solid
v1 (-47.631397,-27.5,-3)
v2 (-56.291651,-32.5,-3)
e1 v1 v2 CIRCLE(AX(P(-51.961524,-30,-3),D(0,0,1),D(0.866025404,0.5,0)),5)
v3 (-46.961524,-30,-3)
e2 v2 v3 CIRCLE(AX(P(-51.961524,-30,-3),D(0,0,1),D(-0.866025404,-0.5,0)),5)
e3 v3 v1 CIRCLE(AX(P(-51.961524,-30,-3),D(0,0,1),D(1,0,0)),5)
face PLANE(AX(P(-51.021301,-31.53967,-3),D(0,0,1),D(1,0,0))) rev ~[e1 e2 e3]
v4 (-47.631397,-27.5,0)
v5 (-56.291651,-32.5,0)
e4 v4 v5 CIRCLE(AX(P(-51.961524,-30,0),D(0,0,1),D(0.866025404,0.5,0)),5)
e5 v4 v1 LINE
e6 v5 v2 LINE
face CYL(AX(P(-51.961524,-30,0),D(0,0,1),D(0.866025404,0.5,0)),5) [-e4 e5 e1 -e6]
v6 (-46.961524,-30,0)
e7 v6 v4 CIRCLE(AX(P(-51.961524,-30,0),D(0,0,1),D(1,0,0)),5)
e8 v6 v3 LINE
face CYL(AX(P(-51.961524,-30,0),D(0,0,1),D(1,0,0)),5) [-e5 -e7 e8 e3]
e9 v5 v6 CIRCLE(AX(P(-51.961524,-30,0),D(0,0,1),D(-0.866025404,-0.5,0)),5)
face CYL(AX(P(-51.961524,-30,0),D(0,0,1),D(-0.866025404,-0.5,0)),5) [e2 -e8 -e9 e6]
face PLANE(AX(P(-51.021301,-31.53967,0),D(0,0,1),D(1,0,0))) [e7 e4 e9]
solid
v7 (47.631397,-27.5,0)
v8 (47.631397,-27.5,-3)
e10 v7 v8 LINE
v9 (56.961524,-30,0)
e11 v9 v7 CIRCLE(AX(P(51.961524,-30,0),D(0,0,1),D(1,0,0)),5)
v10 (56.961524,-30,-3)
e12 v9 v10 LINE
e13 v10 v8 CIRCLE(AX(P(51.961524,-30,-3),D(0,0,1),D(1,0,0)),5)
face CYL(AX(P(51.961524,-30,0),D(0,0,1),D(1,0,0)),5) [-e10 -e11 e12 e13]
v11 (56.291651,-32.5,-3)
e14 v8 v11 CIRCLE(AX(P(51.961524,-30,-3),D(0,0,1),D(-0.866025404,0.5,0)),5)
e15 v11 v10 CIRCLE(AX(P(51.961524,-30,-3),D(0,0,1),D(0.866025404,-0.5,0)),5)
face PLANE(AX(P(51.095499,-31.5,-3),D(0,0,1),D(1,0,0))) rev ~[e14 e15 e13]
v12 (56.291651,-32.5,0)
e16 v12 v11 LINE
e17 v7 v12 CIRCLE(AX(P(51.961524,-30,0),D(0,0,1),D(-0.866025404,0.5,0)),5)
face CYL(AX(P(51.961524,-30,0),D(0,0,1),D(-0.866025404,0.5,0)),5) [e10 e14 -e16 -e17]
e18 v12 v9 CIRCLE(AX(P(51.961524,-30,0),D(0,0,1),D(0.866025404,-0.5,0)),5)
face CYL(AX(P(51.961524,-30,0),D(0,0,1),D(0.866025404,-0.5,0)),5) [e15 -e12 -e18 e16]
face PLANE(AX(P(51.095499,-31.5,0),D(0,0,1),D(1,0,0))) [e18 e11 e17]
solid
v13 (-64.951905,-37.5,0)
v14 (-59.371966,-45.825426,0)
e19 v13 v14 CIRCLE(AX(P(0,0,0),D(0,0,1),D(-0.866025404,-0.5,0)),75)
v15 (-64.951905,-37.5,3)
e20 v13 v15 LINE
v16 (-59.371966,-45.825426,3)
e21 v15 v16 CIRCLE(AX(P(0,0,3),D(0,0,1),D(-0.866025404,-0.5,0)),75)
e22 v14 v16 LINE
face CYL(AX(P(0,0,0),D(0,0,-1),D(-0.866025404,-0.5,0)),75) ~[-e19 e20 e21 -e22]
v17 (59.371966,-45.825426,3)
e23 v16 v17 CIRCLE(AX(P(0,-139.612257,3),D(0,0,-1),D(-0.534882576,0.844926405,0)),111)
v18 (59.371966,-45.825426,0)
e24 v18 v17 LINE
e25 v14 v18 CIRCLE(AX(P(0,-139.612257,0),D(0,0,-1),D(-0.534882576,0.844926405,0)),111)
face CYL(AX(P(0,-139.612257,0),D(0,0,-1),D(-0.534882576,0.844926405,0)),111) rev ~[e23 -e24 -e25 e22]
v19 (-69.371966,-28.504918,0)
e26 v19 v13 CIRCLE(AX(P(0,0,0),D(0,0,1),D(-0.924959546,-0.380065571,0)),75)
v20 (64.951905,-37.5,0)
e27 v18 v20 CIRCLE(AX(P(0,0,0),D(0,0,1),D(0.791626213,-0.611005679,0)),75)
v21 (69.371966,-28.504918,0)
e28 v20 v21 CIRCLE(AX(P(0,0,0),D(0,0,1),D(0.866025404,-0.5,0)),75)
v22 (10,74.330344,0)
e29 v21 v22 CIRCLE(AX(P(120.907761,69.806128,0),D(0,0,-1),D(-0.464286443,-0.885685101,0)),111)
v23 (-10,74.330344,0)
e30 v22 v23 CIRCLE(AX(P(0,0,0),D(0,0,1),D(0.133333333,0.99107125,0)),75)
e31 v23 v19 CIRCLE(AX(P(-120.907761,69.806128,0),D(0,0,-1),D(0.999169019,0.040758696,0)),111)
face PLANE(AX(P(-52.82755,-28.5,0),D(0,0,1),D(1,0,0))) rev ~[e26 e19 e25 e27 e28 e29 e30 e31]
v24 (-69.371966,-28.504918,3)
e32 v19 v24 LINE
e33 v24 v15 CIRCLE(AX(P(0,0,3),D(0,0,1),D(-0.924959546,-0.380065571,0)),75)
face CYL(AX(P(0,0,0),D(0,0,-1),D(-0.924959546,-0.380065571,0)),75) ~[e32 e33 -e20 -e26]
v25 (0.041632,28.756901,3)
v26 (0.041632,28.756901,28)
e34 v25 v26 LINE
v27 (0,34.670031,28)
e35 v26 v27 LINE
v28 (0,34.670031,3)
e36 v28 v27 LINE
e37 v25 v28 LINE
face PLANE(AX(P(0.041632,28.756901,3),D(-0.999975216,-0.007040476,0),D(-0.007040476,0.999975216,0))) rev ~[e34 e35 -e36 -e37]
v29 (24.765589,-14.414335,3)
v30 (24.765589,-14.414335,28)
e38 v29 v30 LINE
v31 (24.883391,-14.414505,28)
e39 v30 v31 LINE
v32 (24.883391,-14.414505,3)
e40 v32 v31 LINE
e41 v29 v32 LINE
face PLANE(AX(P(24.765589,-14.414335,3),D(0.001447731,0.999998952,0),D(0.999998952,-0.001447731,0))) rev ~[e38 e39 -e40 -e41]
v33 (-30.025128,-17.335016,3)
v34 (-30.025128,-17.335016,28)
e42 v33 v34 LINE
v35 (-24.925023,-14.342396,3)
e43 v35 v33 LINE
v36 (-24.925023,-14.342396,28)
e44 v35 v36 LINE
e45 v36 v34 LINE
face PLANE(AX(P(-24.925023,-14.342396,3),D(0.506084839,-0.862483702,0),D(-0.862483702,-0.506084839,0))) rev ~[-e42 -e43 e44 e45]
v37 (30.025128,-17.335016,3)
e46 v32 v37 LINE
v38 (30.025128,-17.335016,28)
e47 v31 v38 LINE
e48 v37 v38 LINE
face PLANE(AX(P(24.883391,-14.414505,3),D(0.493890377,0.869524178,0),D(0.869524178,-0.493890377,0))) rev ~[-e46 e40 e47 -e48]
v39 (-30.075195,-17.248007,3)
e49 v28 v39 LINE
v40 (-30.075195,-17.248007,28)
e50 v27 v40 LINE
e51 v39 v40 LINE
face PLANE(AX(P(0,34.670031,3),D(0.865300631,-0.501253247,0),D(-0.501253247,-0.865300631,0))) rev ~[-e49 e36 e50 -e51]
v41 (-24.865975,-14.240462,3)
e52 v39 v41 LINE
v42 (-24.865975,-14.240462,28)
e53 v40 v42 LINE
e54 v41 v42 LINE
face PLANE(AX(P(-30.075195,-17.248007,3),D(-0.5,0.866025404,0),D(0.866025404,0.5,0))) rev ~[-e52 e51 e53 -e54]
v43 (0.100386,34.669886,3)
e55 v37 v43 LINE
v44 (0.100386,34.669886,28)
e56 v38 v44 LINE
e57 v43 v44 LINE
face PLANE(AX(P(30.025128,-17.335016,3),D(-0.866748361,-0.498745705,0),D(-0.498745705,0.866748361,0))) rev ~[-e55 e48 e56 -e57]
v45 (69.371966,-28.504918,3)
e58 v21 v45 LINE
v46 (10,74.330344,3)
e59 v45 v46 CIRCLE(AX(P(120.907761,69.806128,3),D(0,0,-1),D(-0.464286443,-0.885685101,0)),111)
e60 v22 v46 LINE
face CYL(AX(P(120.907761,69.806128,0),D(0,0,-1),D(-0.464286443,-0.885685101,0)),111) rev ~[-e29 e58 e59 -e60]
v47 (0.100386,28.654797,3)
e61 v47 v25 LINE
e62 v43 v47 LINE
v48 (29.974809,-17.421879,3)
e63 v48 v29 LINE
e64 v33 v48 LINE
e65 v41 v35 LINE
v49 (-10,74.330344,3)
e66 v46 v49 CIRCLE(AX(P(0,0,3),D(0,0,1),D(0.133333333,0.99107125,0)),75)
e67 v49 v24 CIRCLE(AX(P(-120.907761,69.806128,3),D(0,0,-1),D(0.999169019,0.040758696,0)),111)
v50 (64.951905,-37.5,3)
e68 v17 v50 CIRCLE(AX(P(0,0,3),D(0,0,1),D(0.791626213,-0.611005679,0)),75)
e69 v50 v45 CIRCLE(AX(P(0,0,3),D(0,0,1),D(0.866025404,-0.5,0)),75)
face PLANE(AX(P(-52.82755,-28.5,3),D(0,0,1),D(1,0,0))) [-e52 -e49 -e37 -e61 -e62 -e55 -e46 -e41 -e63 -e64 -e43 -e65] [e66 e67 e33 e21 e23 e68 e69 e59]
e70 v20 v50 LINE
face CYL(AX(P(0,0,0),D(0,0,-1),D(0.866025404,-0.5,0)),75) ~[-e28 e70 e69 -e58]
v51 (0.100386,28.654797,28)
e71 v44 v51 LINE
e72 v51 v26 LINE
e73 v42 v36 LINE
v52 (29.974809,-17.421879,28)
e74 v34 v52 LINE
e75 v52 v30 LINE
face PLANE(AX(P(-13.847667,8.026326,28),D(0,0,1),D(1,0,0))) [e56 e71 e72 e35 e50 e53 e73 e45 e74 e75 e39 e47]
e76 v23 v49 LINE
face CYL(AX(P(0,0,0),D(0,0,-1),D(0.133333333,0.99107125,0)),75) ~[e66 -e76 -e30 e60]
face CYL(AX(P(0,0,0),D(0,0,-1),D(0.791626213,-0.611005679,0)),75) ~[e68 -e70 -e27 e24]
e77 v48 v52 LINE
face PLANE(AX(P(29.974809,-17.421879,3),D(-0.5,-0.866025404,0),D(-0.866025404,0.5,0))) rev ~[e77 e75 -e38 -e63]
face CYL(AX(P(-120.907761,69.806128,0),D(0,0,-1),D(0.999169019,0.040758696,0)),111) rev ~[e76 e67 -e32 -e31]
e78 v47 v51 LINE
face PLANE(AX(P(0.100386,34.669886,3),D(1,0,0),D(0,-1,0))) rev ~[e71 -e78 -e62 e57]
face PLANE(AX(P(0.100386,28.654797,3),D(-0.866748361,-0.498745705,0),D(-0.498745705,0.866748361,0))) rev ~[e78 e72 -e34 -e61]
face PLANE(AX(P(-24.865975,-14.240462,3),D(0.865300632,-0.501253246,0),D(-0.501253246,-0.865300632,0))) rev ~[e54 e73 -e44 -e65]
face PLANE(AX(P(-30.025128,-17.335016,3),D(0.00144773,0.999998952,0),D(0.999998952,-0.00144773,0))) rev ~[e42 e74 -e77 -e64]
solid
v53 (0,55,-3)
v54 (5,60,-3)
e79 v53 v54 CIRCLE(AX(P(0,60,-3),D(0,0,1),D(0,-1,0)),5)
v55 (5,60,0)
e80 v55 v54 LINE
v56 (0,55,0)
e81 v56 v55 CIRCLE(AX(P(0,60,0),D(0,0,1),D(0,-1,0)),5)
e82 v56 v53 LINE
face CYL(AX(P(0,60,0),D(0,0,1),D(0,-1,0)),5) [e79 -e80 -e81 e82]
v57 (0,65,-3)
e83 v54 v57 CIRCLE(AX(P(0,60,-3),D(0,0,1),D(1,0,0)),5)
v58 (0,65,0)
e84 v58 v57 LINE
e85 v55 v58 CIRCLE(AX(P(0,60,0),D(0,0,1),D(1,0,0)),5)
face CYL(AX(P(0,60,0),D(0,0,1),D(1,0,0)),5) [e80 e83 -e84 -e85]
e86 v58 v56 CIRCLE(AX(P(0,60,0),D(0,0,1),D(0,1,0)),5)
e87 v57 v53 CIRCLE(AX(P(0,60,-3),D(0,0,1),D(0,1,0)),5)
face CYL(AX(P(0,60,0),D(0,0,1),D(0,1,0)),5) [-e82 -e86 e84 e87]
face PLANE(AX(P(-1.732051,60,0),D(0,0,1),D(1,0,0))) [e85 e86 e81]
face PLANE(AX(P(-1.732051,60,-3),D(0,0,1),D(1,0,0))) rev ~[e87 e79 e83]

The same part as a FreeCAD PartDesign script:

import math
import FreeCAD as App
import Part
import Sketcher

V = App.Vector
Q = App.Units.Quantity


def add_polygon(sketch, points):
    """Adds a closed chain of lines whose ends are joined by coincident constraints."""
    first, n = sketch.GeometryCount, len(points)
    for a, b in zip(points, points[1:] + points[:1]):
        sketch.addGeometry(Part.LineSegment(App.Vector(*a, 0), App.Vector(*b, 0)), False)
    for i in range(n):
        sketch.addConstraint(Sketcher.Constraint("Coincident", first + i, 2, first + (i + 1) % n, 1))

doc = App.newDocument("Part")
body = doc.addObject("PartDesign::Body", "Body")

# Sketch on XY plane
sketch1 = doc.addObject("Sketcher::SketchObject", "Sketch")
body.addObject(sketch1)
sketch1.AttachmentSupport = (doc.XY_Plane, [""])
sketch1.MapMode = "FlatFace"
sketch1.addGeometry([
    Part.ArcOfCircle(Part.Circle(V(-52, -30, 0), V(0, 0, 1), 5), math.radians(0), math.radians(30)),
    Part.ArcOfCircle(Part.Circle(V(-52, -30, 0), V(0, 0, 1), 5), math.radians(30), math.radians(210)),
    Part.ArcOfCircle(Part.Circle(V(-52, -30, 0), V(0, 0, 1), 5), math.radians(-150), math.radians(0)),
], False)
sketch1.addConstraint([
    Sketcher.Constraint("Tangent", 0, 2, 1, 1),
    Sketcher.Constraint("Tangent", 1, 2, 2, 1),
    Sketcher.Constraint("Tangent", 2, 2, 0, 1),
    Sketcher.Constraint("Horizontal", 1, 3, 2, 2),
    Sketcher.Constraint("Radius", 0, 5.0),
    Sketcher.Constraint("DistanceY", 0, 3, -1, 1, 30.0),
    Sketcher.Constraint("DistanceY", 1, 2, 0, 2, 5.0),
    Sketcher.Constraint("DistanceY", 0, 2, -1, 1, 27.5),
    Sketcher.Constraint("DistanceX", 1, 2, -1, 1, 56.291651),
])
pad1 = doc.addObject("PartDesign::Pad", "Pad")
body.addObject(pad1)
pad1.Profile = sketch1
pad1.Length = 3
pad1.Reversed = True
body2 = doc.addObject("PartDesign::Body", "Body001")

# Sketch on XY plane
sketch2 = doc.addObject("Sketcher::SketchObject", "Sketch001")
body2.addObject(sketch2)
sketch2.AttachmentSupport = (doc.getObject("XY_Plane001"), [""])
sketch2.MapMode = "FlatFace"
sketch2.addGeometry([
    Part.ArcOfCircle(Part.Circle(V(52, -30, 0), V(0, 0, 1), 5), math.radians(150), math.radians(330)),
    Part.ArcOfCircle(Part.Circle(V(52, -30, 0), V(0, 0, 1), 5), math.radians(-30), math.radians(0)),
    Part.ArcOfCircle(Part.Circle(V(52, -30, 0), V(0, 0, 1), 5), math.radians(0), math.radians(150)),
], False)
sketch2.addConstraint([
    Sketcher.Constraint("Tangent", 0, 2, 1, 1),
    Sketcher.Constraint("Tangent", 1, 2, 2, 1),
    Sketcher.Constraint("Tangent", 2, 2, 0, 1),
    Sketcher.Constraint("Horizontal", 2, 3, 1, 2),
    Sketcher.Constraint("Radius", 0, 5.0),
    Sketcher.Constraint("DistanceY", 0, 3, -1, 1, 30.0),
    Sketcher.Constraint("DistanceY", 0, 2, 2, 2, 5.0),
    Sketcher.Constraint("DistanceY", 0, 2, -1, 1, 32.5),
    Sketcher.Constraint("DistanceX", -1, 1, 0, 2, 56.291651),
])
pad2 = doc.addObject("PartDesign::Pad", "Pad001")
body2.addObject(pad2)
pad2.Profile = sketch2
pad2.Length = 3
pad2.Reversed = True
body3 = doc.addObject("PartDesign::Body", "Body002")

# Sketch on XY plane
sketch3 = doc.addObject("Sketcher::SketchObject", "Sketch002")
body3.addObject(sketch3)
sketch3.AttachmentSupport = (doc.getObject("XY_Plane002"), [""])
sketch3.MapMode = "FlatFace"
sketch3.addGeometry([
    Part.ArcOfCircle(Part.Circle(V(0, 60, 0), V(0, 0, 1), 5), math.radians(90), math.radians(270)),
    Part.ArcOfCircle(Part.Circle(V(0, 60, 0), V(0, 0, 1), 5), math.radians(-90), math.radians(0)),
    Part.ArcOfCircle(Part.Circle(V(0, 60, 0), V(0, 0, 1), 5), math.radians(0), math.radians(90)),
], False)
sketch3.addConstraint([
    Sketcher.Constraint("Tangent", 0, 2, 1, 1),
    Sketcher.Constraint("Tangent", 1, 2, 2, 1),
    Sketcher.Constraint("Tangent", 2, 2, 0, 1),
    Sketcher.Constraint("PointOnObject", 0, 3, -2),
    Sketcher.Constraint("PointOnObject", 0, 2, -2),
    Sketcher.Constraint("PointOnObject", 2, 2, -2),
    Sketcher.Constraint("Horizontal", 2, 3, 1, 2),
    Sketcher.Constraint("Radius", 0, 5.0),
    Sketcher.Constraint("DistanceY", -1, 1, 0, 3, 60.0),
])
pad3 = doc.addObject("PartDesign::Pad", "Pad002")
body3.addObject(pad3)
pad3.Profile = sketch3
pad3.Length = 3
pad3.Reversed = True
body4 = doc.addObject("PartDesign::Body", "Body003")

# Sketch on XY plane
sketch4 = doc.addObject("Sketcher::SketchObject", "Sketch003")
body4.addObject(sketch4)
sketch4.AttachmentSupport = (doc.getObject("XY_Plane003"), [""])
sketch4.MapMode = "FlatFace"
sketch4.addGeometry([
    Part.ArcOfCircle(Part.Circle(V(0, 0, 0), V(0, 0, 1), 75), math.radians(-150), math.radians(-142.34)),  # 0
    Part.ArcOfCircle(Part.Circle(V(0, -140, 0), V(0, 0, 1), 111), math.radians(58), math.radians(122)),  # 1
    Part.ArcOfCircle(Part.Circle(V(0, 0, 0), V(0, 0, 1), 75), math.radians(-37.66), math.radians(-30)),  # 2
    Part.ArcOfCircle(Part.Circle(V(0, 0, 0), V(0, 0, 1), 75), math.radians(-30), math.radians(-22.34)),  # 3
    Part.ArcOfCircle(Part.Circle(V(121, 70, 0), V(0, 0, 1), 111), math.radians(178), math.radians(242)),  # 4
    Part.ArcOfCircle(Part.Circle(V(0, 0, 0), V(0, 0, 1), 75), math.radians(82.34), math.radians(97.66)),  # 5
    Part.ArcOfCircle(Part.Circle(V(-121, 70, 0), V(0, 0, 1), 111), math.radians(-62), math.radians(2)),  # 6
    Part.ArcOfCircle(Part.Circle(V(0, 0, 0), V(0, 0, 1), 75), math.radians(-157.66), math.radians(-150)),  # 7
], False)
sketch4.addConstraint([
    Sketcher.Constraint("Coincident", 0, 2, 1, 2),
    Sketcher.Constraint("Coincident", 1, 1, 2, 1),
    Sketcher.Constraint("Tangent", 2, 2, 3, 1),
    Sketcher.Constraint("Coincident", 3, 2, 4, 2),
    Sketcher.Constraint("Coincident", 4, 1, 5, 1),
    Sketcher.Constraint("Coincident", 5, 2, 6, 2),
    Sketcher.Constraint("Coincident", 6, 1, 7, 1),
    Sketcher.Constraint("Tangent", 7, 2, 0, 1),
    Sketcher.Constraint("Coincident", 0, 3, -1, 1),
    Sketcher.Constraint("Coincident", 2, 3, -1, 1),
    Sketcher.Constraint("Coincident", 5, 3, -1, 1),
    Sketcher.Constraint("Equal", 0, 2),
    Sketcher.Constraint("Equal", 2, 3),
    Sketcher.Constraint("Equal", 1, 4),
    Sketcher.Constraint("Equal", 3, 5),
    Sketcher.Constraint("Equal", 4, 6),
    Sketcher.Constraint("Equal", 5, 7),
    Sketcher.Constraint("Symmetric", 4, 3, 6, 3, -2),
    Sketcher.Constraint("PointOnObject", 1, 3, -2),
    Sketcher.Constraint("Horizontal", 2, 2, 7, 2),
    Sketcher.Constraint("Radius", 0, 75.0),
    Sketcher.Constraint("Radius", 1, 111.0),
    Sketcher.Constraint("DistanceX", -1, 1, 4, 1, 10.0),
    Sketcher.Constraint("DistanceX", 1, 1, 3, 2, 10.0),
    Sketcher.Constraint("DistanceY", 2, 2, -1, 1, 37.5),
    Sketcher.Constraint("DistanceX", -1, 1, 4, 3, 120.907761),
])
pad4 = doc.addObject("PartDesign::Pad", "Pad003")
body4.addObject(pad4)
pad4.Profile = sketch4
pad4.Length = 3

# Sketch on XY plane
sketch5 = doc.addObject("Sketcher::SketchObject", "Sketch004")
body4.addObject(sketch5)
sketch5.AttachmentSupport = (doc.getObject("XY_Plane003"), [""])
sketch5.MapMode = "FlatFace"
sketch5.AttachmentOffset = App.Placement(V(0, 0, 3), App.Rotation())
add_polygon(sketch5, [(0.04, 28.76), (0, 34.67), (-30.08, -17.25), (-24.87, -14.24), (-24.93, -14.34), (-30.03, -17.34), (29.97, -17.42), (24.77, -14.41), (24.88, -14.41), (30.03, -17.34), (0.1, 34.67), (0.1, 28.65)])  # lines 0-11
sketch5.addConstraint([
    Sketcher.Constraint("Vertical", 10),
    Sketcher.Constraint("Symmetric", 4, 2, 8, 2, -2),
    Sketcher.Constraint("PointOnObject", 0, 2, -2),
    Sketcher.Constraint("Parallel", 1, 3),
    Sketcher.Constraint("Parallel", 5, 7),
    Sketcher.Constraint("Parallel", 9, 11),
    Sketcher.Constraint("Equal", 0, 4),
    Sketcher.Constraint("Equal", 1, 5),
    Sketcher.Constraint("Equal", 2, 6),
    Sketcher.Constraint("Equal", 3, 7),
    Sketcher.Constraint("Equal", 4, 8),
    Sketcher.Constraint("Equal", 5, 9),
    Sketcher.Constraint("Equal", 7, 11),
    Sketcher.Constraint("Angle", 2, Q("30 deg")),
    Sketcher.Constraint("Angle", 6, Q("150 deg")),
    Sketcher.Constraint("Distance", 1, 60.0),
    Sketcher.Constraint("DistanceY", 10, 2, 10, 1, 6.015089),
    Sketcher.Constraint("DistanceY", -1, 1, 11, 2, 28.756901),
    Sketcher.Constraint("DistanceY", 7, 2, 10, 2, 43.069302),
    Sketcher.Constraint("Distance", 2, 6.015089),
    Sketcher.Constraint("DistanceY", -1, 1, 0, 2, 34.670031),
    Sketcher.Constraint("DistanceY", 2, 2, -1, 1, 14.240462),
    Sketcher.Constraint("DistanceX", -1, 1, 5, 2, 29.974809),
])
pad5 = doc.addObject("PartDesign::Pad", "Pad004")
body4.addObject(pad5)
pad5.Profile = sketch5
pad5.Length = 25

doc.recompute()
